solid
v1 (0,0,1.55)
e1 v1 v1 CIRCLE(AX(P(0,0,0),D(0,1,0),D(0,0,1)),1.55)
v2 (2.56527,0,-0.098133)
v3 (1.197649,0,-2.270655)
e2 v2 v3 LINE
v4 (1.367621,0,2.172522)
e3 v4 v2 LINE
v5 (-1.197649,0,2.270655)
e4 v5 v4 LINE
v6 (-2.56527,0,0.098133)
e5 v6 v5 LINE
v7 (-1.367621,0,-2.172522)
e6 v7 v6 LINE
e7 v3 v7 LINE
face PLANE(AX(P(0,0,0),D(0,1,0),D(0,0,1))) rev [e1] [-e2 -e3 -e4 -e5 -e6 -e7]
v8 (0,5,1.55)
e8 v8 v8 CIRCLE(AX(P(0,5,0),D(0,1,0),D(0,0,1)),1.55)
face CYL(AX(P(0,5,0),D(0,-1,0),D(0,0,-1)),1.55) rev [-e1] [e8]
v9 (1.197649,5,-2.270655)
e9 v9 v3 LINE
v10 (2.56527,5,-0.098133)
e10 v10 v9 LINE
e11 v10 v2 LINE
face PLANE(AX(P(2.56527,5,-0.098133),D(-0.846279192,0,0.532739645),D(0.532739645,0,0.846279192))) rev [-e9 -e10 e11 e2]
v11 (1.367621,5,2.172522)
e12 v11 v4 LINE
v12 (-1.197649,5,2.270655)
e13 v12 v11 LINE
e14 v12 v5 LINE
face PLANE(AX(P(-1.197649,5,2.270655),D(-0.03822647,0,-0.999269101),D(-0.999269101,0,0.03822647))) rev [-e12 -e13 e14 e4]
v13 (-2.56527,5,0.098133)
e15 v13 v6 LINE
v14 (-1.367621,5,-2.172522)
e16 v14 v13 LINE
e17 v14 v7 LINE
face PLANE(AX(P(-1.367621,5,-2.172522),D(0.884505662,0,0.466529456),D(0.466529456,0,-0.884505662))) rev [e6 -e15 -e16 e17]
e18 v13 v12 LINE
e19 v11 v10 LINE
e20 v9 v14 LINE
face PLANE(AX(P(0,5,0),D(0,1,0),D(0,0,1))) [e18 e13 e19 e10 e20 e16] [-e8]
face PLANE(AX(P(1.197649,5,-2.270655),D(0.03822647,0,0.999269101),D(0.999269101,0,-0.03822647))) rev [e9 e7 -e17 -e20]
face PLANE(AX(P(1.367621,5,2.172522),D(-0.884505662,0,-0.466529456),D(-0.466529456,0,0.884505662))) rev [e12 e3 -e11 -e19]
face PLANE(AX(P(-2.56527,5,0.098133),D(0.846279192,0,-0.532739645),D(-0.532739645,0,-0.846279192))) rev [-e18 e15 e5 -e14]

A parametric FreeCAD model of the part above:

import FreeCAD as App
import Part
import Sketcher
Q = App.Units.Quantity

doc = App.newDocument("Part")
body = doc.addObject("PartDesign::Body", "Body")

# Sketch on XZ plane
sketch1 = doc.addObject("Sketcher::SketchObject", "Sketch")
body.addObject(sketch1)
sketch1.AttachmentSupport = (doc.XZ_Plane, [""])
sketch1.MapMode = "FlatFace"
sketch1.addGeometry([
    Part.LineSegment(App.Vector(2.6, -0.1, 0), App.Vector(1.2, -2.3, 0)),  # 0
    Part.LineSegment(App.Vector(1.2, -2.3, 0), App.Vector(-1.4, -2.2, 0)),  # 1
    Part.LineSegment(App.Vector(-1.4, -2.2, 0), App.Vector(-2.6, 0.1, 0)),  # 2
    Part.LineSegment(App.Vector(-2.6, 0.1, 0), App.Vector(-1.2, 2.3, 0)),  # 3
    Part.LineSegment(App.Vector(-1.2, 2.3, 0), App.Vector(1.4, 2.2, 0)),  # 4
    Part.LineSegment(App.Vector(1.4, 2.2, 0), App.Vector(2.6, -0.1, 0)),  # 5
    Part.Circle(App.Vector(0, 0, 0), App.Vector(0, 0, 1), 1.6),  # 6
], False)
sketch1.addConstraint([
    Sketcher.Constraint("Coincident", 0, 2, 1, 1),
    Sketcher.Constraint("Coincident", 1, 2, 2, 1),
    Sketcher.Constraint("Coincident", 2, 2, 3, 1),
    Sketcher.Constraint("Coincident", 3, 2, 4, 1),
    Sketcher.Constraint("Coincident", 4, 2, 5, 1),
    Sketcher.Constraint("Coincident", 5, 2, 0, 1),
    Sketcher.Constraint("Coincident", 6, 3, -1, 1),
    Sketcher.Constraint("Symmetric", 0, 2, 3, 2, -1, 1),
    Sketcher.Constraint("Symmetric", 1, 2, 4, 2, -1, 1),
    Sketcher.Constraint("Symmetric", 2, 2, 5, 2, -1, 1),
    Sketcher.Constraint("Equal", 0, 1),
    Sketcher.Constraint("Equal", 1, 2),
    Sketcher.Constraint("Diameter", 6, Q("3.1 mm")),
    Sketcher.Constraint("DistanceX", 3, 2, 0, 2, Q("2.395299 mm")),
    Sketcher.Constraint("DistanceX", 1, 2, -1, 1, Q("1.367621 mm")),
    Sketcher.Constraint("DistanceX", 2, 2, -1, 1, Q("2.56527 mm")),
    Sketcher.Constraint("DistanceY", 0, 2, 2, 2, Q("2.368788 mm")),
])
pad1 = doc.addObject("PartDesign::Pad", "Pad")
body.addObject(pad1)
pad1.Profile = sketch1
pad1.Length = 5
pad1.Reversed = True

doc.recompute()
